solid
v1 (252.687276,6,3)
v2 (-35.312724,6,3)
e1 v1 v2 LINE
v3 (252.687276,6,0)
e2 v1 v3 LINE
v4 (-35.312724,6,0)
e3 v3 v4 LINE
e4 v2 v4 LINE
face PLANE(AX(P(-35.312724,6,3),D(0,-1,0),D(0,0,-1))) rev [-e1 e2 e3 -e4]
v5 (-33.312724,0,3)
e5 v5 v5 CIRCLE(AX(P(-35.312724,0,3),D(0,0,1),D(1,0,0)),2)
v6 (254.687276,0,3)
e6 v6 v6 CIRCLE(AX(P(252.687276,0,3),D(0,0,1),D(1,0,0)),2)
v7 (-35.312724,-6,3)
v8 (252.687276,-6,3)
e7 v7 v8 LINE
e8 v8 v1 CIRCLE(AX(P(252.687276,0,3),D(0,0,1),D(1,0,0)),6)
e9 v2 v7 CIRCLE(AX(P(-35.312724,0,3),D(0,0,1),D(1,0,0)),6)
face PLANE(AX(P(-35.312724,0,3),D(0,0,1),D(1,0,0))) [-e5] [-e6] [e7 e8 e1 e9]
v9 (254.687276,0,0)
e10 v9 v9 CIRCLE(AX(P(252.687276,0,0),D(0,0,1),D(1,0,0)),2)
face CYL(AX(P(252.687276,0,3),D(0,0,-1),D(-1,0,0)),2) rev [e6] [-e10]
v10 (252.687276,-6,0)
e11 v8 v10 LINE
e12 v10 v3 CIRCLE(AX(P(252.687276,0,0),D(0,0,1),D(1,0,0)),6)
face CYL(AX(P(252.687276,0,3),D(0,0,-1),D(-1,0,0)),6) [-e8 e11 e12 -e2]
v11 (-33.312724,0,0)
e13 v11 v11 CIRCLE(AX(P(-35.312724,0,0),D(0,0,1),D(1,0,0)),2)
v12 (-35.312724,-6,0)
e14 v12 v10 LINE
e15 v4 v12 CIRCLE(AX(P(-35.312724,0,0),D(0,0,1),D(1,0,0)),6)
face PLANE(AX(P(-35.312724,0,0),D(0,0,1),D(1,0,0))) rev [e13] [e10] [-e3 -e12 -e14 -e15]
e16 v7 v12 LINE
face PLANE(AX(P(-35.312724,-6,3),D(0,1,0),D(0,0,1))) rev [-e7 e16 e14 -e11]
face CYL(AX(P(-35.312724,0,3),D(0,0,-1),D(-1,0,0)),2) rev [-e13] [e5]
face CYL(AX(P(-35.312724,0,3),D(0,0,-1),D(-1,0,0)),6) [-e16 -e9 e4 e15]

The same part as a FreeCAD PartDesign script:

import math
import FreeCAD as App
import Part
import Sketcher

doc = App.newDocument("Part")
body = doc.addObject("PartDesign::Body", "Body")

# Sketch on XY plane
sketch1 = body.newObject("Sketcher::SketchObject", "Sketch")
sketch1.AttachmentSupport = (doc.getObject("XY_Plane"), [""])
sketch1.MapMode = "FlatFace"
sketch1.addGeometry([
    Part.LineSegment(App.Vector(252.7, 6, 0), App.Vector(-35.3, 6, 0)),  # 0
    Part.ArcOfCircle(Part.Circle(App.Vector(-35.3, 0, 0), App.Vector(0, 0, 1), 6), math.radians(90), math.radians(270)),  # 1
    Part.LineSegment(App.Vector(-35.3, -6, 0), App.Vector(252.7, -6, 0)),  # 2
    Part.ArcOfCircle(Part.Circle(App.Vector(252.7, 0, 0), App.Vector(0, 0, 1), 6), math.radians(-90), math.radians(90)),  # 3
    Part.Circle(App.Vector(252.7, 0, 0), App.Vector(0, 0, 1), 2),  # 4
    Part.Circle(App.Vector(-35.3, 0, 0), App.Vector(0, 0, 1), 2),  # 5
], False)
sketch1.addConstraint([
    Sketcher.Constraint("Tangent", 0, 2, 1, 1),
    Sketcher.Constraint("Tangent", 1, 2, 2, 1),
    Sketcher.Constraint("Tangent", 2, 2, 3, 1),
    Sketcher.Constraint("Tangent", 3, 2, 0, 1),
    Sketcher.Constraint("Horizontal", 0),
    Sketcher.Constraint("Horizontal", 2),
    Sketcher.Constraint("Coincident", 4, 3, 3, 3),
    Sketcher.Constraint("Coincident", 5, 3, 1, 3),
    Sketcher.Constraint("Equal", 4, 5),
    Sketcher.Constraint("PointOnObject", 1, 3, -1),
    Sketcher.Constraint("Diameter", 4, 4.0),
    Sketcher.Constraint("Radius", 1, 6.0),
    Sketcher.Constraint("DistanceX", 0, 2, 0, 1, 288.0),
    Sketcher.Constraint("DistanceX", 1, 3, -1, 1, 35.312724),
])
pad1 = body.newObject("PartDesign::Pad", "Pad")
pad1.Profile = sketch1
pad1.Length = 3

doc.recompute()
